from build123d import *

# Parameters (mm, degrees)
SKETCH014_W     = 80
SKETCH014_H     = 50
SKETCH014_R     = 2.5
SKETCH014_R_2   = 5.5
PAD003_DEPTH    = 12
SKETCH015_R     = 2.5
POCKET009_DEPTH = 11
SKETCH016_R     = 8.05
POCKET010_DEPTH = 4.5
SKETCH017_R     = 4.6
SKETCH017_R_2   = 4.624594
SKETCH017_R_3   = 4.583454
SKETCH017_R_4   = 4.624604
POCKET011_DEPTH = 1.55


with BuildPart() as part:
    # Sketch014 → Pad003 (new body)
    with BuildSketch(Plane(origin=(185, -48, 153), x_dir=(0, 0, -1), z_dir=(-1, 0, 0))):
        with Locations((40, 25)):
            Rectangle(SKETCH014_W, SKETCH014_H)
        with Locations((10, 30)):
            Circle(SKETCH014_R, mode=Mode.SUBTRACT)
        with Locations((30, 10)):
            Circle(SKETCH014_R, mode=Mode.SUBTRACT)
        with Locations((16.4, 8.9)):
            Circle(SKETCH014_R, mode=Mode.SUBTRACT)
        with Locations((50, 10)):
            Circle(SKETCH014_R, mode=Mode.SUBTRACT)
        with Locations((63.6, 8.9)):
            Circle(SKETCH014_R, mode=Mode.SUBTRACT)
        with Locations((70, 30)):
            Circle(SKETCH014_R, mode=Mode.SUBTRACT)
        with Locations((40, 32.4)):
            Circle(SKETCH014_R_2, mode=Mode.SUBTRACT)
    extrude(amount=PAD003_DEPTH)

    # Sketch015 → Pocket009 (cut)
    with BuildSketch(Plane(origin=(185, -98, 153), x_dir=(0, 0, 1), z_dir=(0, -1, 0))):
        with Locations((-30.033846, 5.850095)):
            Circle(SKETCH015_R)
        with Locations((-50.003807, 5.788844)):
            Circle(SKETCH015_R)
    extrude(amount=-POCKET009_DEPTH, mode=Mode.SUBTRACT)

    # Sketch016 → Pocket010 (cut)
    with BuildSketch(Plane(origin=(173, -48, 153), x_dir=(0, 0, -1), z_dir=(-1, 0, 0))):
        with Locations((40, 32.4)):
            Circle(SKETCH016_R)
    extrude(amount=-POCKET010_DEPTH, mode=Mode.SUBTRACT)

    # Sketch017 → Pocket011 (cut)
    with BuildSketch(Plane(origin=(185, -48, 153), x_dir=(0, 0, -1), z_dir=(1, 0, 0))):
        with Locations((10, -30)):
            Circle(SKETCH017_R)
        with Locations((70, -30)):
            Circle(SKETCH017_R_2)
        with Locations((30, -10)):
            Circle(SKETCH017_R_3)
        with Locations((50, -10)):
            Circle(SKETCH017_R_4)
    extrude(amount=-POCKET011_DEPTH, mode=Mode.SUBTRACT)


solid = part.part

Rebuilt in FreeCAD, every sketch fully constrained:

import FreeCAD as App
import Part
import Sketcher
from FreeCAD import Vector
Q = App.Units.Quantity


def add_polygon(sketch, points):
    """Adds a closed chain of lines whose ends are joined by coincident constraints."""
    first, n = sketch.GeometryCount, len(points)
    for a, b in zip(points, points[1:] + points[:1]):
        sketch.addGeometry(Part.LineSegment(App.Vector(*a, 0), App.Vector(*b, 0)), False)
    for i in range(n):
        sketch.addConstraint(Sketcher.Constraint("Coincident", first + i, 2, first + (i + 1) % n, 1))

doc = App.newDocument("Part")
params = doc.addObject("Spreadsheet::Sheet", "Params")
for row, (alias, value) in enumerate([
    ("sketch1_diameter", "5 mm"),
    ("sketch1_diameter2", "11 mm"),
    ("sketch1_width", "50 mm"),
    ("sketch1_height", "80 mm"),
    ("pad1_length", "12 mm"),
    ("sketch2_diameter", "5 mm"),
    ("pocket1_length", "11 mm"),
    ("sketch3_diameter", "16.1 mm"),
    ("pocket2_length", "4.5 mm"),
    ("sketch4_diameter", "9.2 mm"),
    ("pocket3_length", "1.55 mm"),
], start=1):
    params.set(f"A{row}", alias)
    params.set(f"B{row}", "=" + value)
    params.setAlias(f"B{row}", alias)

body = doc.addObject("PartDesign::Body", "Body")

# Sketch on YZ plane
sketch1 = body.newObject("Sketcher::SketchObject", "Sketch")
sketch1.AttachmentSupport = (doc.getObject("YZ_Plane"), [""])
sketch1.MapMode = "FlatFace"
sketch1.AttachmentOffset = App.Placement(Vector(0, 0, 185), App.Rotation())
add_polygon(sketch1, [(-98, 153), (-48, 153), (-48, 73), (-98, 73)])  # lines 0-3
sketch1.addGeometry(Part.Circle(Vector(-56.9, 136.6, 0), Vector(0, 0, 1), 2.5), False)  # 4
sketch1.addGeometry(Part.Circle(Vector(-58, 123, 0), Vector(0, 0, 1), 2.5), False)  # 5
sketch1.addGeometry(Part.Circle(Vector(-58, 103, 0), Vector(0, 0, 1), 2.5), False)  # 6
sketch1.addGeometry(Part.Circle(Vector(-56.9, 89.4, 0), Vector(0, 0, 1), 2.5), False)  # 7
sketch1.addGeometry(Part.Circle(Vector(-78, 143, 0), Vector(0, 0, 1), 2.5), False)  # 8
sketch1.addGeometry(Part.Circle(Vector(-78, 83, 0), Vector(0, 0, 1), 2.5), False)  # 9
sketch1.addGeometry(Part.Circle(Vector(-80.4, 113, 0), Vector(0, 0, 1), 5.5), False)  # 10
sketch1.addConstraint(Sketcher.Constraint("Horizontal", 0))
sketch1.addConstraint(Sketcher.Constraint("Vertical", 1))
sketch1.addConstraint(Sketcher.Constraint("Horizontal", 2))
sketch1.addConstraint(Sketcher.Constraint("Vertical", 3))
sketch1.addConstraint(Sketcher.Constraint("Equal", 4, 5))
sketch1.addConstraint(Sketcher.Constraint("Equal", 5, 6))
sketch1.addConstraint(Sketcher.Constraint("Equal", 6, 7))
sketch1.addConstraint(Sketcher.Constraint("Equal", 7, 8))
sketch1.addConstraint(Sketcher.Constraint("Equal", 8, 9))
sketch1.addConstraint(Sketcher.Constraint("Vertical", 5, 3, 6, 3))
sketch1.addConstraint(Sketcher.Constraint("Vertical", 4, 3, 7, 3))
sketch1.addConstraint(Sketcher.Constraint("Vertical", 8, 3, 9, 3))
sketch1.addConstraint(Sketcher.Constraint("Diameter", 4, Q("5 mm")))
sketch1.addConstraint(Sketcher.Constraint("Diameter", 10, Q("11 mm")))
sketch1.addConstraint(Sketcher.Constraint("DistanceX", 0, 1, 0, 2, Q("50 mm")))
sketch1.addConstraint(Sketcher.Constraint("DistanceY", 1, 2, 1, 1, Q("80 mm")))
sketch1.addConstraint(Sketcher.Constraint("DistanceX", 5, 3, -1, 1, Q("58 mm")))
sketch1.addConstraint(Sketcher.Constraint("DistanceY", -1, 1, 5, 3, Q("123 mm")))
sketch1.addConstraint(Sketcher.Constraint("DistanceY", -1, 1, 6, 3, Q("103 mm")))
sketch1.addConstraint(Sketcher.Constraint("DistanceX", 8, 3, -1, 1, Q("78 mm")))
sketch1.addConstraint(Sketcher.Constraint("DistanceY", -1, 1, 8, 3, Q("143 mm")))
sketch1.addConstraint(Sketcher.Constraint("DistanceY", -1, 1, 9, 3, Q("83 mm")))
sketch1.addConstraint(Sketcher.Constraint("DistanceY", -1, 1, 10, 3, Q("113 mm")))
sketch1.addConstraint(Sketcher.Constraint("DistanceX", 0, 2, -1, 1, Q("48 mm")))
sketch1.addConstraint(Sketcher.Constraint("DistanceY", -1, 1, 0, 2, Q("153 mm")))
sketch1.addConstraint(Sketcher.Constraint("DistanceX", 4, 3, -1, 1, Q("56.9 mm")))
sketch1.addConstraint(Sketcher.Constraint("DistanceY", -1, 1, 4, 3, Q("136.6 mm")))
sketch1.addConstraint(Sketcher.Constraint("DistanceY", -1, 1, 7, 3, Q("89.4 mm")))
sketch1.addConstraint(Sketcher.Constraint("DistanceX", 10, 3, -1, 1, Q("80.4 mm")))
sketch1.setExpression("Constraints[16]", "Params.sketch1_diameter")
sketch1.setExpression("Constraints[17]", "Params.sketch1_diameter2")
sketch1.setExpression("Constraints[18]", "Params.sketch1_width")
sketch1.setExpression("Constraints[19]", "Params.sketch1_height")
pad1 = body.newObject("PartDesign::Pad", "Pad")
pad1.Profile = sketch1
pad1.setExpression("Length", "Params.pad1_length")
pad1.Reversed = True

# Sketch on XZ plane
sketch2 = body.newObject("Sketcher::SketchObject", "Sketch001")
sketch2.AttachmentSupport = (doc.getObject("XZ_Plane"), [""])
sketch2.MapMode = "FlatFace"
sketch2.AttachmentOffset = App.Placement(Vector(0, 0, 98), App.Rotation())
sketch2.addGeometry(Part.Circle(Vector(179.1, 123, 0), Vector(0, 0, 1), 2.5), False)
sketch2.addGeometry(Part.Circle(Vector(179.2, 103, 0), Vector(0, 0, 1), 2.5), False)
sketch2.addConstraint(Sketcher.Constraint("Equal", 0, 1))
sketch2.addConstraint(Sketcher.Constraint("Diameter", 0, Q("5 mm")))
sketch2.addConstraint(Sketcher.Constraint("DistanceX", 0, 3, 1, 3, Q("0.061251 mm")))
sketch2.addConstraint(Sketcher.Constraint("DistanceY", 1, 3, 0, 3, Q("19.969961 mm")))
sketch2.addConstraint(Sketcher.Constraint("DistanceX", -1, 1, 0, 3, Q("179.149905 mm")))
sketch2.addConstraint(Sketcher.Constraint("DistanceY", -1, 1, 0, 3, Q("122.966154 mm")))
sketch2.setExpression("Constraints[1]", "Params.sketch2_diameter")
pocket1 = body.newObject("PartDesign::Pocket", "Pocket")
pocket1.Profile = sketch2
pocket1.setExpression("Length", "Params.pocket1_length")

# Sketch on YZ plane
sketch3 = body.newObject("Sketcher::SketchObject", "Sketch002")
sketch3.AttachmentSupport = (doc.getObject("YZ_Plane"), [""])
sketch3.MapMode = "FlatFace"
sketch3.AttachmentOffset = App.Placement(Vector(0, 0, 173), App.Rotation())
sketch3.addGeometry(Part.Circle(Vector(-80, 113, 0), Vector(0, 0, 1), 8), False)
sketch3.addConstraint(Sketcher.Constraint("Diameter", 0, Q("16.1 mm")))
sketch3.addConstraint(Sketcher.Constraint("DistanceY", -1, 1, 0, 3, Q("113 mm")))
sketch3.addConstraint(Sketcher.Constraint("DistanceX", 0, 3, -1, 1, Q("80.4 mm")))
sketch3.setExpression("Constraints[0]", "Params.sketch3_diameter")
pocket2 = body.newObject("PartDesign::Pocket", "Pocket001")
pocket2.Profile = sketch3
pocket2.setExpression("Length", "Params.pocket2_length")
pocket2.Reversed = True

# Sketch on YZ plane
sketch4 = body.newObject("Sketcher::SketchObject", "Sketch003")
sketch4.AttachmentSupport = (doc.getObject("YZ_Plane"), [""])
sketch4.MapMode = "FlatFace"
sketch4.AttachmentOffset = App.Placement(Vector(0, 0, 185), App.Rotation())
sketch4.addGeometry(Part.Circle(Vector(-78, 143, 0), Vector(0, 0, 1), 4.6), False)
sketch4.addGeometry(Part.Circle(Vector(-78, 83, 0), Vector(0, 0, 1), 4.6), False)
sketch4.addGeometry(Part.Circle(Vector(-58, 123, 0), Vector(0, 0, 1), 4.6), False)
sketch4.addGeometry(Part.Circle(Vector(-58, 103, 0), Vector(0, 0, 1), 4.6), False)
sketch4.addConstraint(Sketcher.Constraint("Vertical", 0, 3, 1, 3))
sketch4.addConstraint(Sketcher.Constraint("Vertical", 2, 3, 3, 3))
sketch4.addConstraint(Sketcher.Constraint("Diameter", 0, Q("9.2 mm")))
sketch4.addConstraint(Sketcher.Constraint("DistanceX", 0, 3, -1, 1, Q("78 mm")))
sketch4.addConstraint(Sketcher.Constraint("DistanceY", -1, 1, 0, 3, Q("143 mm")))
sketch4.addConstraint(Sketcher.Constraint("DistanceY", -1, 1, 1, 3, Q("83 mm")))
sketch4.addConstraint(Sketcher.Constraint("DistanceX", 2, 3, -1, 1, Q("58 mm")))
sketch4.addConstraint(Sketcher.Constraint("DistanceY", -1, 1, 2, 3, Q("123 mm")))
sketch4.addConstraint(Sketcher.Constraint("DistanceY", -1, 1, 3, 3, Q("103 mm")))
sketch4.addConstraint(Sketcher.Constraint("Diameter", 1, Q("9.249188 mm")))
sketch4.addConstraint(Sketcher.Constraint("Diameter", 2, Q("9.166908 mm")))
sketch4.addConstraint(Sketcher.Constraint("Diameter", 3, Q("9.249208 mm")))
sketch4.setExpression("Constraints[2]", "Params.sketch4_diameter")
pocket3 = body.newObject("PartDesign::Pocket", "Pocket002")
pocket3.Profile = sketch4
pocket3.setExpression("Length", "Params.pocket3_length")

doc.recompute()
